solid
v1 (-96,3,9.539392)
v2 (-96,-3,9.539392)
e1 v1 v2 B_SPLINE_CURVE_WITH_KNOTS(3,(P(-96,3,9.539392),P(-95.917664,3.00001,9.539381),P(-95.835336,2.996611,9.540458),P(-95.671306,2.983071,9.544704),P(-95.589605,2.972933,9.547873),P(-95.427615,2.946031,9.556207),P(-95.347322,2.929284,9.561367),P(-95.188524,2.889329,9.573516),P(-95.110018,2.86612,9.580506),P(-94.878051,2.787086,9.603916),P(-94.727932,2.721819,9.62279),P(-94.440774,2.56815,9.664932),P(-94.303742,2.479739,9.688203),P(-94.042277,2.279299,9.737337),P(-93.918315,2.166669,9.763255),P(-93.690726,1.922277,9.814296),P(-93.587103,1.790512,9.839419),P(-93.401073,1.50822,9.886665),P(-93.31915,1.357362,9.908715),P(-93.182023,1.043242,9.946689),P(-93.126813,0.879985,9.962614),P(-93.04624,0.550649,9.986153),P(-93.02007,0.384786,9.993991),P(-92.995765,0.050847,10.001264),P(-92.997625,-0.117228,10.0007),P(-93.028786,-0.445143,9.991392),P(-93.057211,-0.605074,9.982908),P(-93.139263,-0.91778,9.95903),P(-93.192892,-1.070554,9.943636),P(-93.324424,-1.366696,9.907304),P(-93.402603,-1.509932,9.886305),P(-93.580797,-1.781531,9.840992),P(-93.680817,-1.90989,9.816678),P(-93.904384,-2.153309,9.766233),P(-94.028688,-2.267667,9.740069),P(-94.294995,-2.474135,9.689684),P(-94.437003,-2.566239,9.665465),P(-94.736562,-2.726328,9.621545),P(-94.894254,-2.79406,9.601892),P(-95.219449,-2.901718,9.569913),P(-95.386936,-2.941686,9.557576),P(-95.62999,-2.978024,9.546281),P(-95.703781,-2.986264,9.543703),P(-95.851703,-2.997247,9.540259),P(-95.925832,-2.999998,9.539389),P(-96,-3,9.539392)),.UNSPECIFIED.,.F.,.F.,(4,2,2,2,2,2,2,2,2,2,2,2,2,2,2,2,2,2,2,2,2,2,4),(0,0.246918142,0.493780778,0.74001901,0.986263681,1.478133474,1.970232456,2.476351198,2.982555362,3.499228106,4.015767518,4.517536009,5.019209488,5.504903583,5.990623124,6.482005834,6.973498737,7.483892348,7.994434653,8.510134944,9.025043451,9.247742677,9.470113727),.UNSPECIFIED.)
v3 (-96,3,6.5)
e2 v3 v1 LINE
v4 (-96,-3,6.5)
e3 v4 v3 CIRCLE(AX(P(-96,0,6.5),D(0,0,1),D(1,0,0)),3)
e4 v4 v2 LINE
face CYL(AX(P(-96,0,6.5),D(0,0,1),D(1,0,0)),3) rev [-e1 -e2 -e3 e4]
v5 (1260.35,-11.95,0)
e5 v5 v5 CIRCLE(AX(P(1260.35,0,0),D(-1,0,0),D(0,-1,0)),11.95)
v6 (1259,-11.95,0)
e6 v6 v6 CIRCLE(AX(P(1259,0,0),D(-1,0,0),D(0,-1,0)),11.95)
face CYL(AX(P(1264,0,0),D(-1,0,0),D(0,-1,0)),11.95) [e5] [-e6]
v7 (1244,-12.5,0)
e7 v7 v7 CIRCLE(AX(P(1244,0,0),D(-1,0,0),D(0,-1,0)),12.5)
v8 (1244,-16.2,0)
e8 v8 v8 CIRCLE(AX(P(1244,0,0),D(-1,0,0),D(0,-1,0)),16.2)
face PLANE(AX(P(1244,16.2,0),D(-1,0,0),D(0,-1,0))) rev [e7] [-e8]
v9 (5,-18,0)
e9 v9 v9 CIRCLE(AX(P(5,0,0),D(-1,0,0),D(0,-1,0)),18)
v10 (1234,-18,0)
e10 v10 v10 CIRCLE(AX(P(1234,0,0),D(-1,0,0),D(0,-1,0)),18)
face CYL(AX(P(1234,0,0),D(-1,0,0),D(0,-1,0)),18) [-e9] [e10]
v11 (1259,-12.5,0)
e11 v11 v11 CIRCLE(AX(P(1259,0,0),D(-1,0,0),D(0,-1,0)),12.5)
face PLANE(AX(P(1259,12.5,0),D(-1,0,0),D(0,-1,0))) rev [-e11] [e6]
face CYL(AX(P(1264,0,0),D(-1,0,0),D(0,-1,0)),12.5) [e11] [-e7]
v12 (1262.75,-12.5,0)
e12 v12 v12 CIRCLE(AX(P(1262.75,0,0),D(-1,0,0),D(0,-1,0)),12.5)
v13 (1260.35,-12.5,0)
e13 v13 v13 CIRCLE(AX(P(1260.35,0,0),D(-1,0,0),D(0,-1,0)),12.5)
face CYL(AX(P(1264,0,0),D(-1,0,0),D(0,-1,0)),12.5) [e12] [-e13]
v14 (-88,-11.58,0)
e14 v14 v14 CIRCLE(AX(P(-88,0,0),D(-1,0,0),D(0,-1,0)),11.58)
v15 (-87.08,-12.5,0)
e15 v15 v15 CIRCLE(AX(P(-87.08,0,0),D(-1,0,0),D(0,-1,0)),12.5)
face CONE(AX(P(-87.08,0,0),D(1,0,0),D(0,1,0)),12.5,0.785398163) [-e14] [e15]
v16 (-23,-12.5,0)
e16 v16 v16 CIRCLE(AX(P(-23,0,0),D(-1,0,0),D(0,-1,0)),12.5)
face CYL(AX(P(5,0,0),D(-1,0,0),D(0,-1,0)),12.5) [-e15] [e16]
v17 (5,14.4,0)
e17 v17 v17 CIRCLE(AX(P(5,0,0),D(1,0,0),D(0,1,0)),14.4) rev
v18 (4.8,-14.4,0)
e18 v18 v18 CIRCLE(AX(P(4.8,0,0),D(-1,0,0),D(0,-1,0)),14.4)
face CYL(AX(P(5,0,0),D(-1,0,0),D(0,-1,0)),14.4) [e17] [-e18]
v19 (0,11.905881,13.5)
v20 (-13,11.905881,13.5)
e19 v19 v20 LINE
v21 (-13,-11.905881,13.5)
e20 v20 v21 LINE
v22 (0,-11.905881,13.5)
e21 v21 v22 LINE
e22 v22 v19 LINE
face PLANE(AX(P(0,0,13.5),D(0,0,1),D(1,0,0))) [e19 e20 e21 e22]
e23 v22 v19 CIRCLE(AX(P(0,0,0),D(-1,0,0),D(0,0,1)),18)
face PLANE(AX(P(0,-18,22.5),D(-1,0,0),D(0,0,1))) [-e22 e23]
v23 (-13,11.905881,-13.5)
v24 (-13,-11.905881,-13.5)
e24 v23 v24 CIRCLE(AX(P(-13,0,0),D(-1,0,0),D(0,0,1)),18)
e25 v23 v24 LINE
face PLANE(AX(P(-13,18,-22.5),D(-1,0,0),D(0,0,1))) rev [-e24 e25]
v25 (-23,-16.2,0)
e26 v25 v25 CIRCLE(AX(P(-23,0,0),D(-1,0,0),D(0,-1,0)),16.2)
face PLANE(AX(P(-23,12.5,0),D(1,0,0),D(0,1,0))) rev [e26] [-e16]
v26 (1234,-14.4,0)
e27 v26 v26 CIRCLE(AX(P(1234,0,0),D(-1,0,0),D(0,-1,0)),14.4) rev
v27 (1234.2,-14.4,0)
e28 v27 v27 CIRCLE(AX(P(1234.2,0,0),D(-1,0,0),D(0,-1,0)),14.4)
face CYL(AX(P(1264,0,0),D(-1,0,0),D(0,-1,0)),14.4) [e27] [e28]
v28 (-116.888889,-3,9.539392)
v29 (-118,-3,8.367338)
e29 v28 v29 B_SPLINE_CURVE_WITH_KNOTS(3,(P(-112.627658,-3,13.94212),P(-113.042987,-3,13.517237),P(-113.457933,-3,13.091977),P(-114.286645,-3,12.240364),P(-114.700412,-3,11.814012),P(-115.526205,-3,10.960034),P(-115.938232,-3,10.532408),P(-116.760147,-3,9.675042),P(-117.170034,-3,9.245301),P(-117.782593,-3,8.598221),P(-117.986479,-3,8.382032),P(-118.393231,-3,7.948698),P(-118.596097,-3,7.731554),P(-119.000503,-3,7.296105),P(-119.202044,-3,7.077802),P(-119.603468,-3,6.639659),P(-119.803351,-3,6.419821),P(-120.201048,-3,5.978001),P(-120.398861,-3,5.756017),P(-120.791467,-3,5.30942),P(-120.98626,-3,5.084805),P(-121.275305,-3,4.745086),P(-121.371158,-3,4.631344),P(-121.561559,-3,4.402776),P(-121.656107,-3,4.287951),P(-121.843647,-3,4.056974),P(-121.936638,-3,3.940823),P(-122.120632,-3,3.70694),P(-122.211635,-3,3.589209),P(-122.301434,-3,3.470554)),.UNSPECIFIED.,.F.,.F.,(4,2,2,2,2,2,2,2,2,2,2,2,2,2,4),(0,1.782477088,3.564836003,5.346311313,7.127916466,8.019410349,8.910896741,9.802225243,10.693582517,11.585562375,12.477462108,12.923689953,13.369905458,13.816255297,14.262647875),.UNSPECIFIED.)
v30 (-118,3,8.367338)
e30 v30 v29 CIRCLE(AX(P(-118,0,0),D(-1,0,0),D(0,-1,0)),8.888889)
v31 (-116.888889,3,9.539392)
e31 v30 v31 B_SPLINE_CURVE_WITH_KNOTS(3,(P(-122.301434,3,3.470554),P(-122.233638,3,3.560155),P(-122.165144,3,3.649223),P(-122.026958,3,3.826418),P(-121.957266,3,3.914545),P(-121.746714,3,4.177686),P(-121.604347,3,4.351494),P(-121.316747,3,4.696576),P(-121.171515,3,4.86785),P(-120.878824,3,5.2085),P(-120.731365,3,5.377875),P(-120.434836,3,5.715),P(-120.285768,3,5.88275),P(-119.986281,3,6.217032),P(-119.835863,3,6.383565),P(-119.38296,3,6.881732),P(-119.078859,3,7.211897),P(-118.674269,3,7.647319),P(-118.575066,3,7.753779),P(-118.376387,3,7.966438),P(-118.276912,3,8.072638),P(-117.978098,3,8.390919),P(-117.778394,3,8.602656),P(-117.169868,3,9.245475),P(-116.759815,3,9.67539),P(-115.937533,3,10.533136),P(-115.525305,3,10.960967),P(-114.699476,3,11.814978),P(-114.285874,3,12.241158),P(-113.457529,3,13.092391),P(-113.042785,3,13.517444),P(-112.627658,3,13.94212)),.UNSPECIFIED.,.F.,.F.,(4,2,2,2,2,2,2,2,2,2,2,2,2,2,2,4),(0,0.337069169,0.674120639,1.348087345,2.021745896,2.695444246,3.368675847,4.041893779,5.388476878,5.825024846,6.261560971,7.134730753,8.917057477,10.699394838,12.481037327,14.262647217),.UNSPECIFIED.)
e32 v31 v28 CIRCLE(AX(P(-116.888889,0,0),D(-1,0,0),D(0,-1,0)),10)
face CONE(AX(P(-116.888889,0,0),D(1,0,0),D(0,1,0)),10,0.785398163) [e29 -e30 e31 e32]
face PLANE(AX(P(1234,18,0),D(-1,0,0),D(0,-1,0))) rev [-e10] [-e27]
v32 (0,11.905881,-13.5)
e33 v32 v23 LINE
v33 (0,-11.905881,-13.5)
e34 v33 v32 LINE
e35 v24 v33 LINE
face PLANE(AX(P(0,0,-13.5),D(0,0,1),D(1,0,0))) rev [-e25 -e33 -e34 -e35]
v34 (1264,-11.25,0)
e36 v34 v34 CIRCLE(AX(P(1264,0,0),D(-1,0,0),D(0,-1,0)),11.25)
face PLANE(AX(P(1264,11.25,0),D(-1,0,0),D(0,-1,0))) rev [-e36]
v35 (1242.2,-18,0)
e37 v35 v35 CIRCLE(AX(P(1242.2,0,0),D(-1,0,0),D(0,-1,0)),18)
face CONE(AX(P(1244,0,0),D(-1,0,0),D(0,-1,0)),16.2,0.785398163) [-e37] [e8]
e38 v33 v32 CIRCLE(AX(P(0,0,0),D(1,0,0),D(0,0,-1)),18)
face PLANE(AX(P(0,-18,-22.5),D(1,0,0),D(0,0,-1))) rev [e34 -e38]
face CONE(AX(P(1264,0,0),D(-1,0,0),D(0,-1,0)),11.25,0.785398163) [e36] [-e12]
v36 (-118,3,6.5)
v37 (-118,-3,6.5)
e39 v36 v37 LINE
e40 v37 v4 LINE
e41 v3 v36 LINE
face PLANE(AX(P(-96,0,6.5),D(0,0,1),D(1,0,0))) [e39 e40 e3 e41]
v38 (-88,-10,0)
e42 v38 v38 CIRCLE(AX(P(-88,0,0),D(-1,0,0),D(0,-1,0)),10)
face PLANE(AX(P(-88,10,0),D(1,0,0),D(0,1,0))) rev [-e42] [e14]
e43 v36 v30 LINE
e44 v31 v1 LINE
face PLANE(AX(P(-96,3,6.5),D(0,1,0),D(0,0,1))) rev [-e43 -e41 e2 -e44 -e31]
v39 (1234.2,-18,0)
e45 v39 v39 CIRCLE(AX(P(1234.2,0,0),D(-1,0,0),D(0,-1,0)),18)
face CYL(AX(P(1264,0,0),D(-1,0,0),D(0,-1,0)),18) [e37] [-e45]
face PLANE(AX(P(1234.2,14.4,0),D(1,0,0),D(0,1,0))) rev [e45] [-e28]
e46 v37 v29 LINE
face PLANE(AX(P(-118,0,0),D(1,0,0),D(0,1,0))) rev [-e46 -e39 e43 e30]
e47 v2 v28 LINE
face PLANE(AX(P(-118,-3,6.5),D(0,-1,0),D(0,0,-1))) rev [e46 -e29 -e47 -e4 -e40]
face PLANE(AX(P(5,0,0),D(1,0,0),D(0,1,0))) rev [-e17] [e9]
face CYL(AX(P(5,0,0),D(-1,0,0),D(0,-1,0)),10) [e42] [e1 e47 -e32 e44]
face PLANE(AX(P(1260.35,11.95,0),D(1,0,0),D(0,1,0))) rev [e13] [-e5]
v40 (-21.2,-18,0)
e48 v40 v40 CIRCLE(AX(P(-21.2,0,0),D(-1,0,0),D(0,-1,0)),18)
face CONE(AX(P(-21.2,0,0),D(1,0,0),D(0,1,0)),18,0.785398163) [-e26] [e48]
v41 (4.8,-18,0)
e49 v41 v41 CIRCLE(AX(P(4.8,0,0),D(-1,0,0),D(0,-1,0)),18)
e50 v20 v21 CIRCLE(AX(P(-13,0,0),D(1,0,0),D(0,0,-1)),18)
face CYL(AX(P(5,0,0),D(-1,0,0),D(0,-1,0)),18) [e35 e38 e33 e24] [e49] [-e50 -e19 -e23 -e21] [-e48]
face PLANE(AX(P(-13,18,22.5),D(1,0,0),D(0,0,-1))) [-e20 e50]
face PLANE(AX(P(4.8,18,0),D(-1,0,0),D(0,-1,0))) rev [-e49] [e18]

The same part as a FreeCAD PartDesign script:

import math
import FreeCAD as App
import Part
import Sketcher

V = App.Vector
Q = App.Units.Quantity


def add_polygon(sketch, points):
    """Adds a closed chain of lines whose ends are joined by coincident constraints."""
    first, n = sketch.GeometryCount, len(points)
    for a, b in zip(points, points[1:] + points[:1]):
        sketch.addGeometry(Part.LineSegment(App.Vector(*a, 0), App.Vector(*b, 0)), False)
    for i in range(n):
        sketch.addConstraint(Sketcher.Constraint("Coincident", first + i, 2, first + (i + 1) % n, 1))

doc = App.newDocument("Part")
body = doc.addObject("PartDesign::Body", "Body")

# Sketch on XY plane
sketch1 = body.newObject("Sketcher::SketchObject", "Sketch")
sketch1.AttachmentSupport = (doc.getObject("XY_Plane"), [""])
sketch1.MapMode = "FlatFace"
add_polygon(sketch1, [(5, 18), (5, 0), (1234, 0), (1234, 18)])  # lines 0-3
sketch1.addConstraint([
    Sketcher.Constraint("Vertical", 0),
    Sketcher.Constraint("Horizontal", 1),
    Sketcher.Constraint("Vertical", 2),
    Sketcher.Constraint("Horizontal", 3),
    Sketcher.Constraint("PointOnObject", 0, 2, -1),
    Sketcher.Constraint("DistanceX", 1, 1, 1, 2, 1229.0),
    Sketcher.Constraint("DistanceY", 0, 2, 0, 1, 18.0),
    Sketcher.Constraint("DistanceX", -1, 1, 0, 2, 5.0),
])
revolution = body.newObject("PartDesign::Revolution", "Revolution")
revolution.Profile = sketch1
revolution.ReferenceAxis = (sketch1, ["H_Axis"])
revolution.Angle = 360

# Sketch on XY plane
sketch2 = body.newObject("Sketcher::SketchObject", "Sketch001")
sketch2.AttachmentSupport = (doc.getObject("XY_Plane"), [""])
sketch2.MapMode = "FlatFace"
add_polygon(sketch2, [(-118, 8.89), (-118, 0), (5, 0), (5, 14.4), (4.8, 14.4), (4.8, 18), (-21.2, 18), (-23, 16.2), (-23, 12.5), (-87.08, 12.5), (-88, 11.58), (-88, 10), (-116.89, 10)])  # lines 0-12
sketch2.addConstraint([
    Sketcher.Constraint("Vertical", 0),
    Sketcher.Constraint("Horizontal", 1),
    Sketcher.Constraint("Vertical", 2),
    Sketcher.Constraint("Horizontal", 3),
    Sketcher.Constraint("Vertical", 4),
    Sketcher.Constraint("Horizontal", 5),
    Sketcher.Constraint("Vertical", 7),
    Sketcher.Constraint("Horizontal", 8),
    Sketcher.Constraint("Vertical", 10),
    Sketcher.Constraint("Horizontal", 11),
    Sketcher.Constraint("PointOnObject", 0, 2, -1),
    Sketcher.Constraint("Parallel", 6, 9),
    Sketcher.Constraint("Parallel", 9, 12),
    Sketcher.Constraint("DistanceX", 1, 1, 1, 2, 123.0),
    Sketcher.Constraint("DistanceX", 5, 2, 5, 1, 26.0),
    Sketcher.Constraint("Angle", 6, Q("-135 deg")),
    Sketcher.Constraint("DistanceX", 3, 2, 3, 1, 0.2),
    Sketcher.Constraint("DistanceY", 2, 1, 2, 2, 14.4),
    Sketcher.Constraint("DistanceY", 4, 1, 4, 2, 3.6),
    Sketcher.Constraint("DistanceY", 7, 2, 7, 1, 3.7),
    Sketcher.Constraint("DistanceX", 0, 2, -1, 1, 118.0),
    Sketcher.Constraint("DistanceX", 6, 2, -1, 1, 23.0),
    Sketcher.Constraint("DistanceX", 9, 2, -1, 1, 88.0),
    Sketcher.Constraint("DistanceY", -1, 1, 10, 2, 10.0),
    Sketcher.Constraint("DistanceX", 8, 2, 8, 1, 64.08),
    Sketcher.Constraint("DistanceX", 11, 2, 11, 1, 28.888889),
])
revolution2 = body.newObject("PartDesign::Revolution", "Revolution001")
revolution2.Profile = sketch2
revolution2.ReferenceAxis = (sketch2, ["H_Axis"])
revolution2.Angle = 360

# Sketch on XY plane
sketch3 = body.newObject("Sketcher::SketchObject", "Sketch002")
sketch3.AttachmentSupport = (doc.getObject("XY_Plane"), [""])
sketch3.MapMode = "FlatFace"
sketch3.AttachmentOffset = App.Placement(V(0, 0, 13.5), App.Rotation())
add_polygon(sketch3, [(-13, 18), (-13, -18), (0, -18), (0, 18)])  # lines 0-3
sketch3.addConstraint([
    Sketcher.Constraint("Vertical", 0),
    Sketcher.Constraint("Horizontal", 1),
    Sketcher.Constraint("Vertical", 2),
    Sketcher.Constraint("Horizontal", 3),
    Sketcher.Constraint("Symmetric", 1, 2, 2, 2, -1, 1),
    Sketcher.Constraint("DistanceX", 1, 1, 1, 2, 13.0),
    Sketcher.Constraint("DistanceY", 0, 2, 0, 1, 36.0),
])
pocket1 = body.newObject("PartDesign::Pocket", "Pocket")
pocket1.Profile = sketch3
pocket1.Length = 9
pocket1.Reversed = True

# Sketch on XY plane
sketch4 = body.newObject("Sketcher::SketchObject", "Sketch003")
sketch4.AttachmentSupport = (doc.getObject("XY_Plane"), [""])
sketch4.MapMode = "FlatFace"
sketch4.AttachmentOffset = App.Placement(V(0, 0, -13.5), App.Rotation())
add_polygon(sketch4, [(-13, 18), (-13, -18), (0, -18), (0, 18)])  # lines 0-3
sketch4.addConstraint([
    Sketcher.Constraint("Vertical", 0),
    Sketcher.Constraint("Horizontal", 1),
    Sketcher.Constraint("Vertical", 2),
    Sketcher.Constraint("Horizontal", 3),
    Sketcher.Constraint("Symmetric", 1, 2, 2, 2, -1, 1),
    Sketcher.Constraint("DistanceX", 1, 1, 1, 2, 13.0),
    Sketcher.Constraint("DistanceY", 0, 2, 0, 1, 36.0),
])
pocket2 = body.newObject("PartDesign::Pocket", "Pocket001")
pocket2.Profile = sketch4
pocket2.Length = 9

# Sketch on XY plane
sketch5 = body.newObject("Sketcher::SketchObject", "Sketch004")
sketch5.AttachmentSupport = (doc.getObject("XY_Plane"), [""])
sketch5.MapMode = "FlatFace"
sketch5.AttachmentOffset = App.Placement(V(0, 0, 10), App.Rotation())
sketch5.addGeometry([
    Part.LineSegment(V(-118, -3, 0), V(-96, -3, 0)),
    Part.ArcOfCircle(Part.Circle(V(-96, 0, 0), V(0, 0, 1), 3), math.radians(-90), math.radians(90)),
    Part.LineSegment(V(-96, 3, 0), V(-118, 3, 0)),
    Part.LineSegment(V(-118, 3, 0), V(-118, -3, 0)),
], False)
sketch5.addConstraint([
    Sketcher.Constraint("Tangent", 0, 2, 1, 1),
    Sketcher.Constraint("Tangent", 1, 2, 2, 1),
    Sketcher.Constraint("Coincident", 2, 2, 3, 1),
    Sketcher.Constraint("Coincident", 3, 2, 0, 1),
    Sketcher.Constraint("Horizontal", 0),
    Sketcher.Constraint("Horizontal", 2),
    Sketcher.Constraint("Vertical", 3),
    Sketcher.Constraint("PointOnObject", 1, 3, -1),
    Sketcher.Constraint("Radius", 1, 3.0),
    Sketcher.Constraint("DistanceX", 0, 1, 0, 2, 22.0),
    Sketcher.Constraint("DistanceX", 1, 3, -1, 1, 96.0),
])
pocket3 = body.newObject("PartDesign::Pocket", "Pocket002")
pocket3.Profile = sketch5
pocket3.Length = 3.5

# Sketch on XY plane
sketch6 = body.newObject("Sketcher::SketchObject", "Sketch005")
sketch6.AttachmentSupport = (doc.getObject("XY_Plane"), [""])
sketch6.MapMode = "FlatFace"
add_polygon(sketch6, [(1234, 14.4), (1234, 0), (1264, 0), (1264, 11.25), (1262.75, 12.5), (1260.35, 12.5), (1260.35, 11.95), (1259, 11.95), (1259, 12.5), (1244, 12.5), (1244, 16.2), (1242.2, 18), (1234.2, 18), (1234.2, 14.4)])  # lines 0-13
sketch6.addConstraint([
    Sketcher.Constraint("Vertical", 0),
    Sketcher.Constraint("Horizontal", 1),
    Sketcher.Constraint("Vertical", 2),
    Sketcher.Constraint("Horizontal", 4),
    Sketcher.Constraint("Vertical", 5),
    Sketcher.Constraint("Horizontal", 6),
    Sketcher.Constraint("Vertical", 7),
    Sketcher.Constraint("Horizontal", 8),
    Sketcher.Constraint("Vertical", 9),
    Sketcher.Constraint("Horizontal", 11),
    Sketcher.Constraint("Vertical", 12),
    Sketcher.Constraint("Horizontal", 13),
    Sketcher.Constraint("PointOnObject", 0, 2, -1),
    Sketcher.Constraint("Parallel", 3, 10),
    Sketcher.Constraint("Horizontal", 4, 2, 7, 2),
    Sketcher.Constraint("DistanceX", 1, 1, 1, 2, 30.0),
    Sketcher.Constraint("DistanceX", 8, 2, 8, 1, 15.0),
    Sketcher.Constraint("DistanceX", 11, 2, 11, 1, 8.0),
    Sketcher.Constraint("Angle", 3, Q("135 deg")),
    Sketcher.Constraint("DistanceX", 4, 2, 4, 1, 2.4),
    Sketcher.Constraint("DistanceX", 13, 2, 13, 1, 0.2),
    Sketcher.Constraint("DistanceY", 0, 2, 0, 1, 14.4),
    Sketcher.Constraint("DistanceY", 9, 1, 9, 2, 3.7),
    Sketcher.Constraint("DistanceY", 12, 2, 12, 1, 3.6),
    Sketcher.Constraint("DistanceX", -1, 1, 0, 2, 1234.0),
    Sketcher.Constraint("DistanceX", -1, 1, 6, 2, 1259.0),
    Sketcher.Constraint("DistanceX", 6, 2, 6, 1, 1.35),
    Sketcher.Constraint("DistanceY", 5, 2, 5, 1, 0.55),
])
revolution3 = body.newObject("PartDesign::Revolution", "Revolution002")
revolution3.Profile = sketch6
revolution3.ReferenceAxis = (sketch6, ["H_Axis"])
revolution3.Angle = 360

doc.recompute()
